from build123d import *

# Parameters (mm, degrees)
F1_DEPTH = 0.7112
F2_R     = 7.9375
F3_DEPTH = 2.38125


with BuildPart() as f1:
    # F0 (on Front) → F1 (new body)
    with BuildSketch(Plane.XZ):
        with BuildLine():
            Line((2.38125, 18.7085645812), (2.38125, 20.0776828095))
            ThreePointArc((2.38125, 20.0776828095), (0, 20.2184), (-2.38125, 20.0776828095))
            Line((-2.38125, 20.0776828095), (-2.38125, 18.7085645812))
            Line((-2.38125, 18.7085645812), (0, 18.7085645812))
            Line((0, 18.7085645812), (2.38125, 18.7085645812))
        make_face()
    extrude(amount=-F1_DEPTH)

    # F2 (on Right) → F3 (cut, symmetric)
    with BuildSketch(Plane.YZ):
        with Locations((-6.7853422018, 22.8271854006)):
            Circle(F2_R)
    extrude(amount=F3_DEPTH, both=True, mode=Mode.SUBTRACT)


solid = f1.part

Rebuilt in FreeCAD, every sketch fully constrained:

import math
import FreeCAD as App
import Part
import Sketcher
Q = App.Units.Quantity

doc = App.newDocument("Part")
body = doc.addObject("PartDesign::Body", "Body")

sketch1 = doc.addObject("Sketcher::SketchObject", "Sketch")
body.addObject(sketch1)
sketch1.AttachmentSupport = (doc.XZ_Plane, [""])
sketch1.MapMode = "FlatFace"
sketch1.addGeometry([
    Part.LineSegment(App.Vector(2.38125, 18.708565, 0), App.Vector(2.38125, 20.077683, 0)),
    Part.ArcOfCircle(Part.Circle(App.Vector(0, 0, 0), App.Vector(0, 0, 1), 20.2184), math.radians(83.236211), math.radians(96.763789)),
    Part.LineSegment(App.Vector(-2.38125, 20.077683, 0), App.Vector(-2.38125, 18.708565, 0)),
    Part.LineSegment(App.Vector(-2.38125, 18.708565, 0), App.Vector(2.38125, 18.708565, 0)),
], False)
sketch1.addConstraint([
    Sketcher.Constraint("Coincident", 0, 2, 1, 1),
    Sketcher.Constraint("Coincident", 1, 2, 2, 1),
    Sketcher.Constraint("Coincident", 2, 2, 3, 1),
    Sketcher.Constraint("Coincident", 3, 2, 0, 1),
    Sketcher.Constraint("Vertical", 0),
    Sketcher.Constraint("Vertical", 2),
    Sketcher.Constraint("Horizontal", 3),
    Sketcher.Constraint("Coincident", 1, 3, -1, 1),
    Sketcher.Constraint("Horizontal", 0, 2, 1, 2),
    Sketcher.Constraint("Radius", 1, Q("0.796 in")),
    Sketcher.Constraint("DistanceX", 3, 1, 3, 2, Q("0.1875 in")),
    Sketcher.Constraint("DistanceY", 0, 1, 0, 2, 1.369118),
])
pad1 = doc.addObject("PartDesign::Pad", "Pad")
body.addObject(pad1)
pad1.Profile = sketch1
pad1.Length = Q("0.028 in")
pad1.Reversed = True

sketch2 = doc.addObject("Sketcher::SketchObject", "Sketch001")
body.addObject(sketch2)
sketch2.AttachmentSupport = (doc.YZ_Plane, [""])
sketch2.MapMode = "FlatFace"
sketch2.addGeometry(Part.Circle(App.Vector(-6.785342, 22.827185, 0), App.Vector(0, 0, 1), 7.9375), False)
sketch2.addConstraint([
    Sketcher.Constraint("Diameter", 0, Q("0.625 in")),
    Sketcher.Constraint("DistanceX", 0, 3, -1, 1, 6.785342),
    Sketcher.Constraint("DistanceY", -1, 1, 0, 3, 22.827185),
])
pocket1 = doc.addObject("PartDesign::Pocket", "Pocket")
body.addObject(pocket1)
pocket1.Profile = sketch2
pocket1.Length = Q("0.1875 in")
pocket1.Midplane = True

doc.recompute()
